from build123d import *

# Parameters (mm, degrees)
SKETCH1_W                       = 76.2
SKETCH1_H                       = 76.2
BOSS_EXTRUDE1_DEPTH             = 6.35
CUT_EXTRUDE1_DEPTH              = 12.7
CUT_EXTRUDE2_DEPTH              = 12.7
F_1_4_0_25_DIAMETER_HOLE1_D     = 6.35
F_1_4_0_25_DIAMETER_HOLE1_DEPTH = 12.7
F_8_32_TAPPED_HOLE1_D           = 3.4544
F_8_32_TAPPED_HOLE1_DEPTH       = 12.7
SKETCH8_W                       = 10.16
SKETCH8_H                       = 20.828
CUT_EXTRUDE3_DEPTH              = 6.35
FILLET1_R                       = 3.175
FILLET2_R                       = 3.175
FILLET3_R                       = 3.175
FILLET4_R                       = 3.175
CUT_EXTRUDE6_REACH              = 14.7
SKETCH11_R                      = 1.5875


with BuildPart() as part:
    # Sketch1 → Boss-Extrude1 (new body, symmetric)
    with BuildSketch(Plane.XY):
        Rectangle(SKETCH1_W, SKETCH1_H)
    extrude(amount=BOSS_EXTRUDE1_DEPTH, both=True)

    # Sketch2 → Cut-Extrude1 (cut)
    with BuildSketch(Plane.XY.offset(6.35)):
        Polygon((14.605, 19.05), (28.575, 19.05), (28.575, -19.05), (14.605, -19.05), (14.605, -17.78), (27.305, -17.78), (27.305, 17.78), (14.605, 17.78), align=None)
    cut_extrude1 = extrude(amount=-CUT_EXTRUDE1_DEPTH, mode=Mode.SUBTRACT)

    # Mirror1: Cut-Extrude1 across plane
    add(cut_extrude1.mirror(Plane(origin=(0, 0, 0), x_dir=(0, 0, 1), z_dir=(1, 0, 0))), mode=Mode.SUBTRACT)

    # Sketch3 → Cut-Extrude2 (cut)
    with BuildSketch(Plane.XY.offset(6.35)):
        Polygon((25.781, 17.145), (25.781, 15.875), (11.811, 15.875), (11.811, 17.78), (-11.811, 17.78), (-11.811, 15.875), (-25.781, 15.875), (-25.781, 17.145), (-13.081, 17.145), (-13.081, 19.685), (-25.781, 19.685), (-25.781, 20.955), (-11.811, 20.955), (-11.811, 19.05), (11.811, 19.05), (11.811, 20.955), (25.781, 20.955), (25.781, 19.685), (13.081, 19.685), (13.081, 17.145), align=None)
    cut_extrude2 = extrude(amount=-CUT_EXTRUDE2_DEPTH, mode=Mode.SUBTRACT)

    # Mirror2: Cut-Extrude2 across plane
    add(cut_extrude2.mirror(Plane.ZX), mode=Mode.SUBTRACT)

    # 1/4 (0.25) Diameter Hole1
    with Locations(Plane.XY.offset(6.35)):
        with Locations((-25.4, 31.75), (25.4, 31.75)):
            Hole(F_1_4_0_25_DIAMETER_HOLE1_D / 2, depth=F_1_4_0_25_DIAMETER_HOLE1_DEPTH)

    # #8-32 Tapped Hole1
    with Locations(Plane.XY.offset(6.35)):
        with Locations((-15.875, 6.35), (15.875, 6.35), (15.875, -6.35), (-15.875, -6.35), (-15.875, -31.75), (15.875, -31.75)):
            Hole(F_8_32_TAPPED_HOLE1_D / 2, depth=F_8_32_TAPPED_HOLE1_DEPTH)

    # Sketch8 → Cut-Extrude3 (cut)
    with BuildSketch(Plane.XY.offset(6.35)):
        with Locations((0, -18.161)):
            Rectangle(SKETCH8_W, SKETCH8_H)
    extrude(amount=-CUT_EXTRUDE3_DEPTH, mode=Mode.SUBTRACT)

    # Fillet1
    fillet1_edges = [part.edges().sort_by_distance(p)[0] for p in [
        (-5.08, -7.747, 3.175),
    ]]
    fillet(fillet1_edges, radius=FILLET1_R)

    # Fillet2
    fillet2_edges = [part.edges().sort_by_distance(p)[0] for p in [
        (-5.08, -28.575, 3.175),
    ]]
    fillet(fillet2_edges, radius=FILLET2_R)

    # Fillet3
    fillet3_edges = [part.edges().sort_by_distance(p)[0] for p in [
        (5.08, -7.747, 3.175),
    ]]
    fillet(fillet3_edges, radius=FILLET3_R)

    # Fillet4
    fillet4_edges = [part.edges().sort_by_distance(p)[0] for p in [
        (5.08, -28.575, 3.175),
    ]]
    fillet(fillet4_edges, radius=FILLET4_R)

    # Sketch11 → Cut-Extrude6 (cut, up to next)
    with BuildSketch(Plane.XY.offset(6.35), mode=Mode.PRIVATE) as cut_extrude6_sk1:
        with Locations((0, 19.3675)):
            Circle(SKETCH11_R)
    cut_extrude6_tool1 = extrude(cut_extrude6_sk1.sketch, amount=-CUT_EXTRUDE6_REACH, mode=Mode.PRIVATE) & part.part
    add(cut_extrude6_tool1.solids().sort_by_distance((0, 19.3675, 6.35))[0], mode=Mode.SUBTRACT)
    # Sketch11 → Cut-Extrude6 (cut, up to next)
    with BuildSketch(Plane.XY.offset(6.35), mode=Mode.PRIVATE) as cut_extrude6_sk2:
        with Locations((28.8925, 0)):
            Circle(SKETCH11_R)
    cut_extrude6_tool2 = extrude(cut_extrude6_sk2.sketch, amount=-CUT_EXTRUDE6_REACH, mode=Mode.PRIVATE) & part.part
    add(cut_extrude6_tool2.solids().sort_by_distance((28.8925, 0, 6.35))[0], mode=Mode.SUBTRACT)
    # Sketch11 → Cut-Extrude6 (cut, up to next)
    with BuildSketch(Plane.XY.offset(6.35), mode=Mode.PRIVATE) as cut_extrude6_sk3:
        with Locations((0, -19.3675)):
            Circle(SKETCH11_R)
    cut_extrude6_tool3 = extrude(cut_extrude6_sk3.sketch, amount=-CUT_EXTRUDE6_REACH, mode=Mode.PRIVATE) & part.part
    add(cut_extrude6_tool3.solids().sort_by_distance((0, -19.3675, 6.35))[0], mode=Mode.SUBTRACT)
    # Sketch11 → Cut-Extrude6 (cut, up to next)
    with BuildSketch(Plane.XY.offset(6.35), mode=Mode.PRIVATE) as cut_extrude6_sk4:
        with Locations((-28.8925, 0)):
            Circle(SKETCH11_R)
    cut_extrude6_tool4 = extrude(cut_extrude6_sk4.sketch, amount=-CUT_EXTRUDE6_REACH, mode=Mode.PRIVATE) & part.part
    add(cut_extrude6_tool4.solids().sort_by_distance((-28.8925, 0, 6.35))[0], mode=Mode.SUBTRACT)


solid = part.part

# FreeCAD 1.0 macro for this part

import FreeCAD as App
import Part
import Sketcher
Q = App.Units.Quantity


def edges_at(feature, points):
    """Names of the edges that pass closest to the given points."""
    edges = feature.Shape.Edges
    near = lambda p: min(range(len(edges)), key=lambda i: edges[i].distToShape(Part.Vertex(*p))[0])
    return sorted({f"Edge{near(p) + 1}" for p in points})

doc = App.newDocument("Part")
params = doc.addObject("Spreadsheet::Sheet", "Params")
for row, (alias, value) in enumerate([
    ("sketch1_width", "3 in"),
    ("pad1_length", "0.5 in"),
    ("sketch2_width", "0.5 in"),
    ("sketch2_height", "1.4 in"),
    ("sketch2_height2", "1.5 in"),
    ("sketch2_width2", "0.55 in"),
    ("pocket1_length", "0.5 in"),
    ("sketch3_width", "0.5 in"),
    ("sketch3_height", "0.1 in"),
    ("sketch3_width2", "0.55 in"),
    ("sketch3_width3", "0.93 in"),
    ("sketch3_height2", "0.05 in"),
    ("pocket2_length", "0.5 in"),
    ("sketch4_diameter", "0.25 in"),
    ("hole_diameter", "0.25 in"),
    ("hole_depth", "0.5 in"),
    ("sketch5_diameter", "0.136 in"),
    ("hole2_diameter", "0.136 in"),
    ("hole2_depth", "0.5 in"),
    ("sketch6_width", "0.4 in"),
    ("sketch6_height", "0.82 in"),
    ("pocket3_length", "0.25 in"),
    ("fillet_radius", "0.125 in"),
    ("fillet2_radius", "0.125 in"),
    ("fillet3_radius", "0.125 in"),
    ("fillet4_radius", "0.125 in"),
    ("sketch7_diameter", "0.125 in"),
    ("sketch8_diameter", "0.125 in"),
    ("sketch9_diameter", "0.125 in"),
    ("pocket6_length", "0.5 in"),
    ("sketch10_diameter", "0.125 in"),
], start=1):
    params.set(f"A{row}", alias)
    params.set(f"B{row}", "=" + value)
    params.setAlias(f"B{row}", alias)

body = doc.addObject("PartDesign::Body", "Body")

sketch1 = body.newObject("Sketcher::SketchObject", "Sketch")
sketch1.AttachmentSupport = (doc.getObject("XY_Plane"), [""])
sketch1.MapMode = "FlatFace"
sketch1.addGeometry([
    Part.LineSegment(App.Vector(-38, 38, 0), App.Vector(-38, -38, 0)),
    Part.LineSegment(App.Vector(-38, -38, 0), App.Vector(38, -38, 0)),
    Part.LineSegment(App.Vector(38, -38, 0), App.Vector(38, 38, 0)),
    Part.LineSegment(App.Vector(38, 38, 0), App.Vector(-38, 38, 0)),
], False)
sketch1.addConstraint([
    Sketcher.Constraint("Coincident", 0, 2, 1, 1),
    Sketcher.Constraint("Coincident", 1, 2, 2, 1),
    Sketcher.Constraint("Coincident", 2, 2, 3, 1),
    Sketcher.Constraint("Coincident", 3, 2, 0, 1),
    Sketcher.Constraint("Vertical", 0),
    Sketcher.Constraint("Horizontal", 1),
    Sketcher.Constraint("Vertical", 2),
    Sketcher.Constraint("Horizontal", 3),
    Sketcher.Constraint("Symmetric", 0, 2, 2, 2, -1, 1),
    Sketcher.Constraint("Equal", 3, 0),
    Sketcher.Constraint("DistanceX", 1, 1, 1, 2, Q("3 in")),
])
sketch1.setExpression("Constraints[10]", "Params.sketch1_width")
pad1 = body.newObject("PartDesign::Pad", "Pad")
pad1.Profile = sketch1
pad1.setExpression("Length", "Params.pad1_length")
pad1.Midplane = True

sketch2 = body.newObject("Sketcher::SketchObject", "Sketch001")
sketch2.AttachmentSupport = (doc.getObject("XY_Plane"), [""])
sketch2.MapMode = "FlatFace"
sketch2.AttachmentOffset = App.Placement(App.Vector(0, 0, 0.25 * 25.4), App.Rotation())
sketch2.addGeometry([
    Part.LineSegment(App.Vector(28.6, 19.1, 0), App.Vector(14.6, 19.1, 0)),
    Part.LineSegment(App.Vector(14.6, 19.1, 0), App.Vector(14.6, 17.8, 0)),
    Part.LineSegment(App.Vector(14.6, 17.8, 0), App.Vector(27.3, 17.8, 0)),
    Part.LineSegment(App.Vector(27.3, 17.8, 0), App.Vector(27.3, -17.8, 0)),
    Part.LineSegment(App.Vector(27.3, -17.8, 0), App.Vector(14.6, -17.8, 0)),
    Part.LineSegment(App.Vector(14.6, -17.8, 0), App.Vector(14.6, -19.1, 0)),
    Part.LineSegment(App.Vector(14.6, -19.1, 0), App.Vector(28.6, -19.1, 0)),
    Part.LineSegment(App.Vector(28.6, -19.1, 0), App.Vector(28.6, 19.1, 0)),
], False)
sketch2.addConstraint([
    Sketcher.Constraint("Coincident", 0, 2, 1, 1),
    Sketcher.Constraint("Coincident", 1, 2, 2, 1),
    Sketcher.Constraint("Coincident", 2, 2, 3, 1),
    Sketcher.Constraint("Coincident", 3, 2, 4, 1),
    Sketcher.Constraint("Coincident", 4, 2, 5, 1),
    Sketcher.Constraint("Coincident", 5, 2, 6, 1),
    Sketcher.Constraint("Coincident", 6, 2, 7, 1),
    Sketcher.Constraint("Coincident", 7, 2, 0, 1),
    Sketcher.Constraint("Horizontal", 0),
    Sketcher.Constraint("Vertical", 1),
    Sketcher.Constraint("Horizontal", 2),
    Sketcher.Constraint("Vertical", 3),
    Sketcher.Constraint("Horizontal", 4),
    Sketcher.Constraint("Vertical", 5),
    Sketcher.Constraint("Horizontal", 6),
    Sketcher.Constraint("Vertical", 7),
    Sketcher.Constraint("Symmetric", 1, 2, 4, 2, -1),
    Sketcher.Constraint("Equal", 1, 5),
    Sketcher.Constraint("DistanceX", 2, 1, 2, 2, Q("0.5 in")),
    Sketcher.Constraint("DistanceY", 3, 2, 3, 1, Q("1.4 in")),
    Sketcher.Constraint("DistanceY", 7, 1, 7, 2, Q("1.5 in")),
    Sketcher.Constraint("DistanceX", 0, 2, 0, 1, Q("0.55 in")),
    Sketcher.Constraint("DistanceX", -1, 1, 0, 2, Q("0.575 in")),
])
sketch2.setExpression("Constraints[18]", "Params.sketch2_width")
sketch2.setExpression("Constraints[19]", "Params.sketch2_height")
sketch2.setExpression("Constraints[20]", "Params.sketch2_height2")
sketch2.setExpression("Constraints[21]", "Params.sketch2_width2")
pocket1 = body.newObject("PartDesign::Pocket", "Pocket")
pocket1.Profile = sketch2
pocket1.setExpression("Length", "Params.pocket1_length")
doc.recompute()

mirrored = body.newObject("PartDesign::Mirrored", "Mirrored")
mirrored.Originals = [pocket1]
mirrored.MirrorPlane = (doc.getObject("YZ_Plane"), [""])
body.Tip = mirrored

sketch3 = body.newObject("Sketcher::SketchObject", "Sketch002")
sketch3.AttachmentSupport = (doc.getObject("XY_Plane"), [""])
sketch3.MapMode = "FlatFace"
sketch3.AttachmentOffset = App.Placement(App.Vector(0, 0, 0.25 * 25.4), App.Rotation())
sketch3.addGeometry([
    Part.LineSegment(App.Vector(25.8, 15.9, 0), App.Vector(25.8, 17.1, 0)),
    Part.LineSegment(App.Vector(25.8, 17.1, 0), App.Vector(13.1, 17.1, 0)),
    Part.LineSegment(App.Vector(13.1, 17.1, 0), App.Vector(13.1, 19.7, 0)),
    Part.LineSegment(App.Vector(13.1, 19.7, 0), App.Vector(25.8, 19.7, 0)),
    Part.LineSegment(App.Vector(25.8, 19.7, 0), App.Vector(25.8, 21, 0)),
    Part.LineSegment(App.Vector(25.8, 21, 0), App.Vector(11.8, 21, 0)),
    Part.LineSegment(App.Vector(11.8, 21, 0), App.Vector(11.8, 19.1, 0)),
    Part.LineSegment(App.Vector(11.8, 19.1, 0), App.Vector(-11.8, 19.1, 0)),
    Part.LineSegment(App.Vector(-11.8, 19.1, 0), App.Vector(-11.8, 21, 0)),
    Part.LineSegment(App.Vector(-11.8, 21, 0), App.Vector(-25.8, 21, 0)),
    Part.LineSegment(App.Vector(-25.8, 21, 0), App.Vector(-25.8, 19.7, 0)),
    Part.LineSegment(App.Vector(-25.8, 19.7, 0), App.Vector(-13.1, 19.7, 0)),
    Part.LineSegment(App.Vector(-13.1, 19.7, 0), App.Vector(-13.1, 17.1, 0)),
    Part.LineSegment(App.Vector(-13.1, 17.1, 0), App.Vector(-25.8, 17.1, 0)),
    Part.LineSegment(App.Vector(-25.8, 17.1, 0), App.Vector(-25.8, 15.9, 0)),
    Part.LineSegment(App.Vector(-25.8, 15.9, 0), App.Vector(-11.8, 15.9, 0)),
    Part.LineSegment(App.Vector(-11.8, 15.9, 0), App.Vector(-11.8, 17.8, 0)),
    Part.LineSegment(App.Vector(-11.8, 17.8, 0), App.Vector(11.8, 17.8, 0)),
    Part.LineSegment(App.Vector(11.8, 17.8, 0), App.Vector(11.8, 15.9, 0)),
    Part.LineSegment(App.Vector(11.8, 15.9, 0), App.Vector(25.8, 15.9, 0)),
], False)
sketch3.addConstraint([
    Sketcher.Constraint("Coincident", 0, 2, 1, 1),
    Sketcher.Constraint("Coincident", 1, 2, 2, 1),
    Sketcher.Constraint("Coincident", 2, 2, 3, 1),
    Sketcher.Constraint("Coincident", 3, 2, 4, 1),
    Sketcher.Constraint("Coincident", 4, 2, 5, 1),
    Sketcher.Constraint("Coincident", 5, 2, 6, 1),
    Sketcher.Constraint("Coincident", 6, 2, 7, 1),
    Sketcher.Constraint("Coincident", 7, 2, 8, 1),
    Sketcher.Constraint("Coincident", 8, 2, 9, 1),
    Sketcher.Constraint("Coincident", 9, 2, 10, 1),
    Sketcher.Constraint("Coincident", 10, 2, 11, 1),
    Sketcher.Constraint("Coincident", 11, 2, 12, 1),
    Sketcher.Constraint("Coincident", 12, 2, 13, 1),
    Sketcher.Constraint("Coincident", 13, 2, 14, 1),
    Sketcher.Constraint("Coincident", 14, 2, 15, 1),
    Sketcher.Constraint("Coincident", 15, 2, 16, 1),
    Sketcher.Constraint("Coincident", 16, 2, 17, 1),
    Sketcher.Constraint("Coincident", 17, 2, 18, 1),
    Sketcher.Constraint("Coincident", 18, 2, 19, 1),
    Sketcher.Constraint("Coincident", 19, 2, 0, 1),
    Sketcher.Constraint("Vertical", 0),
    Sketcher.Constraint("Horizontal", 1),
    Sketcher.Constraint("Vertical", 2),
    Sketcher.Constraint("Horizontal", 3),
    Sketcher.Constraint("Vertical", 4),
    Sketcher.Constraint("Horizontal", 5),
    Sketcher.Constraint("Vertical", 6),
    Sketcher.Constraint("Horizontal", 7),
    Sketcher.Constraint("Vertical", 8),
    Sketcher.Constraint("Horizontal", 9),
    Sketcher.Constraint("Vertical", 10),
    Sketcher.Constraint("Horizontal", 11),
    Sketcher.Constraint("Vertical", 12),
    Sketcher.Constraint("Horizontal", 13),
    Sketcher.Constraint("Vertical", 14),
    Sketcher.Constraint("Horizontal", 15),
    Sketcher.Constraint("Vertical", 16),
    Sketcher.Constraint("Horizontal", 17),
    Sketcher.Constraint("Vertical", 18),
    Sketcher.Constraint("Horizontal", 19),
    Sketcher.Constraint("Symmetric", 5, 2, 8, 2, -2),
    Sketcher.Constraint("Symmetric", 3, 2, 10, 2, -2),
    Sketcher.Constraint("Symmetric", 1, 2, 12, 2, -2),
    Sketcher.Constraint("Symmetric", 15, 2, 18, 2, -2),
    Sketcher.Constraint("Vertical", 0, 2, 3, 2),
    Sketcher.Constraint("Vertical", 10, 2, 13, 2),
    Sketcher.Constraint("Vertical", 8, 2, 15, 2),
    Sketcher.Constraint("Equal", 0, 4),
    Sketcher.Constraint("Equal", 8, 16),
    Sketcher.Constraint("DistanceX", 1, 2, 1, 1, Q("0.5 in")),
    Sketcher.Constraint("DistanceY", 2, 1, 2, 2, Q("0.1 in")),
    Sketcher.Constraint("DistanceX", 5, 2, 5, 1, Q("0.55 in")),
    Sketcher.Constraint("DistanceX", 7, 2, 7, 1, Q("0.93 in")),
    Sketcher.Constraint("DistanceY", 0, 1, 0, 2, Q("0.05 in")),
    Sketcher.Constraint("DistanceY", -1, 1, 16, 2, Q("0.7 in")),
    Sketcher.Constraint("DistanceY", 6, 2, 6, 1, Q("0.075 in")),
])
sketch3.setExpression("Constraints[49]", "Params.sketch3_width")
sketch3.setExpression("Constraints[50]", "Params.sketch3_height")
sketch3.setExpression("Constraints[51]", "Params.sketch3_width2")
sketch3.setExpression("Constraints[52]", "Params.sketch3_width3")
sketch3.setExpression("Constraints[53]", "Params.sketch3_height2")
pocket2 = body.newObject("PartDesign::Pocket", "Pocket001")
pocket2.Profile = sketch3
pocket2.setExpression("Length", "Params.pocket2_length")
doc.recompute()

mirrored2 = body.newObject("PartDesign::Mirrored", "Mirrored001")
mirrored2.Originals = [pocket2]
mirrored2.MirrorPlane = (doc.getObject("XZ_Plane"), [""])
body.Tip = mirrored2

sketch4 = body.newObject("Sketcher::SketchObject", "Sketch003")
sketch4.AttachmentSupport = (doc.getObject("XY_Plane"), [""])
sketch4.MapMode = "FlatFace"
sketch4.AttachmentOffset = App.Placement(App.Vector(0, 0, 0.25 * 25.4), App.Rotation())
sketch4.addGeometry([
    Part.Circle(App.Vector(-25.4, 31.8, 0), App.Vector(0, 0, 1), 3.2),
    Part.Circle(App.Vector(25.4, 31.8, 0), App.Vector(0, 0, 1), 3.2),
], False)
sketch4.addConstraint([
    Sketcher.Constraint("Equal", 0, 1),
    Sketcher.Constraint("Symmetric", 0, 3, 1, 3, -2),
    Sketcher.Constraint("Diameter", 0, Q("0.25 in")),
    Sketcher.Constraint("DistanceX", 0, 3, -1, 1, Q("1 in")),
    Sketcher.Constraint("DistanceY", -1, 1, 0, 3, Q("1.25 in")),
])
sketch4.setExpression("Constraints[2]", "Params.sketch4_diameter")
doc.recompute()
hole = body.newObject("PartDesign::Hole", "Hole")
hole.Profile = sketch4
hole.ThreadType = "None"
hole.setExpression("Diameter", "Params.hole_diameter")
hole.DepthType = "Dimension"
hole.setExpression("Depth", "Params.hole_depth")
hole.DrillPoint = "Flat"

sketch5 = body.newObject("Sketcher::SketchObject", "Sketch004")
sketch5.AttachmentSupport = (doc.getObject("XY_Plane"), [""])
sketch5.MapMode = "FlatFace"
sketch5.AttachmentOffset = App.Placement(App.Vector(0, 0, 0.25 * 25.4), App.Rotation())
sketch5.addGeometry([
    Part.Circle(App.Vector(-15.9, 6.3, 0), App.Vector(0, 0, 1), 1.7),
    Part.Circle(App.Vector(15.9, 6.3, 0), App.Vector(0, 0, 1), 1.7),
    Part.Circle(App.Vector(15.9, -6.3, 0), App.Vector(0, 0, 1), 1.7),
    Part.Circle(App.Vector(-15.9, -6.3, 0), App.Vector(0, 0, 1), 1.7),
    Part.Circle(App.Vector(-15.9, -31.8, 0), App.Vector(0, 0, 1), 1.7),
    Part.Circle(App.Vector(15.9, -31.8, 0), App.Vector(0, 0, 1), 1.7),
], False)
sketch5.addConstraint([
    Sketcher.Constraint("Equal", 0, 1),
    Sketcher.Constraint("Equal", 1, 2),
    Sketcher.Constraint("Equal", 2, 3),
    Sketcher.Constraint("Equal", 3, 4),
    Sketcher.Constraint("Equal", 4, 5),
    Sketcher.Constraint("Symmetric", 0, 3, 2, 3, -1, 1),
    Sketcher.Constraint("Symmetric", 1, 3, 3, 3, -1, 1),
    Sketcher.Constraint("Symmetric", 0, 3, 1, 3, -2),
    Sketcher.Constraint("Symmetric", 4, 3, 5, 3, -2),
    Sketcher.Constraint("Vertical", 3, 3, 4, 3),
    Sketcher.Constraint("Diameter", 0, Q("0.136 in")),
    Sketcher.Constraint("DistanceY", 4, 3, 3, 3, Q("1 in")),
    Sketcher.Constraint("DistanceY", 2, 3, 1, 3, Q("0.5 in")),
    Sketcher.Constraint("DistanceX", 0, 3, 1, 3, Q("1.25 in")),
])
sketch5.setExpression("Constraints[10]", "Params.sketch5_diameter")
doc.recompute()
hole2 = body.newObject("PartDesign::Hole", "Hole001")
hole2.Profile = sketch5
hole2.ThreadType = "None"
hole2.setExpression("Diameter", "Params.hole2_diameter")
hole2.DepthType = "Dimension"
hole2.setExpression("Depth", "Params.hole2_depth")
hole2.DrillPoint = "Flat"

sketch6 = body.newObject("Sketcher::SketchObject", "Sketch005")
sketch6.AttachmentSupport = (doc.getObject("XY_Plane"), [""])
sketch6.MapMode = "FlatFace"
sketch6.AttachmentOffset = App.Placement(App.Vector(0, 0, 0.25 * 25.4), App.Rotation())
sketch6.addGeometry([
    Part.LineSegment(App.Vector(-5, -8, 0), App.Vector(-5, -29, 0)),
    Part.LineSegment(App.Vector(-5, -29, 0), App.Vector(5, -29, 0)),
    Part.LineSegment(App.Vector(5, -29, 0), App.Vector(5, -8, 0)),
    Part.LineSegment(App.Vector(5, -8, 0), App.Vector(-5, -8, 0)),
], False)
sketch6.addConstraint([
    Sketcher.Constraint("Coincident", 0, 2, 1, 1),
    Sketcher.Constraint("Coincident", 1, 2, 2, 1),
    Sketcher.Constraint("Coincident", 2, 2, 3, 1),
    Sketcher.Constraint("Coincident", 3, 2, 0, 1),
    Sketcher.Constraint("Vertical", 0),
    Sketcher.Constraint("Horizontal", 1),
    Sketcher.Constraint("Vertical", 2),
    Sketcher.Constraint("Horizontal", 3),
    Sketcher.Constraint("DistanceX", 1, 1, 1, 2, Q("0.4 in")),
    Sketcher.Constraint("DistanceY", 0, 2, 0, 1, Q("0.82 in")),
    Sketcher.Constraint("DistanceX", 0, 2, -1, 1, Q("0.2 in")),
    Sketcher.Constraint("DistanceY", 0, 2, -1, 1, Q("1.125 in")),
])
sketch6.setExpression("Constraints[8]", "Params.sketch6_width")
sketch6.setExpression("Constraints[9]", "Params.sketch6_height")
pocket3 = body.newObject("PartDesign::Pocket", "Pocket002")
pocket3.Profile = sketch6
pocket3.setExpression("Length", "Params.pocket3_length")
doc.recompute()

fillet = body.newObject("PartDesign::Fillet", "Fillet")
fillet.Base = (pocket3, edges_at(pocket3, [(-5.08, -7.747, 3.175)]))
fillet.setExpression("Radius", "Params.fillet_radius")
doc.recompute()

fillet2 = body.newObject("PartDesign::Fillet", "Fillet001")
fillet2.Base = (fillet, edges_at(fillet, [(-5.08, -28.575, 3.175)]))
fillet2.setExpression("Radius", "Params.fillet2_radius")
doc.recompute()

fillet3 = body.newObject("PartDesign::Fillet", "Fillet002")
fillet3.Base = (fillet2, edges_at(fillet2, [(5.08, -7.747, 3.175)]))
fillet3.setExpression("Radius", "Params.fillet3_radius")
doc.recompute()

fillet4 = body.newObject("PartDesign::Fillet", "Fillet003")
fillet4.Base = (fillet3, edges_at(fillet3, [(5.08, -28.575, 3.175)]))
fillet4.setExpression("Radius", "Params.fillet4_radius")

sketch7 = body.newObject("Sketcher::SketchObject", "Sketch006")
sketch7.AttachmentSupport = (doc.getObject("XY_Plane"), [""])
sketch7.MapMode = "FlatFace"
sketch7.AttachmentOffset = App.Placement(App.Vector(0, 0, 0.25 * 25.4), App.Rotation())
sketch7.addGeometry(Part.Circle(App.Vector(0, 19.4, 0), App.Vector(0, 0, 1), 1.6), False)
sketch7.addConstraint([
    Sketcher.Constraint("PointOnObject", 0, 3, -2),
    Sketcher.Constraint("Diameter", 0, Q("0.125 in")),
    Sketcher.Constraint("DistanceY", -1, 1, 0, 3, Q("0.7625 in")),
])
sketch7.setExpression("Constraints[1]", "Params.sketch7_diameter")
pocket4 = body.newObject("PartDesign::Pocket", "Pocket003")
pocket4.Profile = sketch7
pocket4.Type = "UpToFirst"

sketch8 = body.newObject("Sketcher::SketchObject", "Sketch007")
sketch8.AttachmentSupport = (doc.getObject("XY_Plane"), [""])
sketch8.MapMode = "FlatFace"
sketch8.AttachmentOffset = App.Placement(App.Vector(0, 0, 0.25 * 25.4), App.Rotation())
sketch8.addGeometry(Part.Circle(App.Vector(28.9, 0, 0), App.Vector(0, 0, 1), 1.6), False)
sketch8.addConstraint([
    Sketcher.Constraint("PointOnObject", 0, 3, -1),
    Sketcher.Constraint("Diameter", 0, Q("0.125 in")),
    Sketcher.Constraint("DistanceX", -1, 1, 0, 3, Q("1.1375 in")),
])
sketch8.setExpression("Constraints[1]", "Params.sketch8_diameter")
pocket5 = body.newObject("PartDesign::Pocket", "Pocket004")
pocket5.Profile = sketch8
pocket5.Type = "UpToFirst"

sketch9 = body.newObject("Sketcher::SketchObject", "Sketch008")
sketch9.AttachmentSupport = (doc.getObject("XY_Plane"), [""])
sketch9.MapMode = "FlatFace"
sketch9.AttachmentOffset = App.Placement(App.Vector(0, 0, 0.25 * 25.4), App.Rotation())
sketch9.addGeometry(Part.Circle(App.Vector(0, -19.4, 0), App.Vector(0, 0, 1), 1.6), False)
sketch9.addConstraint([
    Sketcher.Constraint("PointOnObject", 0, 3, -2),
    Sketcher.Constraint("Diameter", 0, Q("0.125 in")),
    Sketcher.Constraint("DistanceY", 0, 3, -1, 1, Q("0.7625 in")),
])
sketch9.setExpression("Constraints[1]", "Params.sketch9_diameter")
pocket6 = body.newObject("PartDesign::Pocket", "Pocket005")
pocket6.Profile = sketch9
pocket6.setExpression("Length", "Params.pocket6_length")

sketch10 = body.newObject("Sketcher::SketchObject", "Sketch009")
sketch10.AttachmentSupport = (doc.getObject("XY_Plane"), [""])
sketch10.MapMode = "FlatFace"
sketch10.AttachmentOffset = App.Placement(App.Vector(0, 0, 0.25 * 25.4), App.Rotation())
sketch10.addGeometry(Part.Circle(App.Vector(-28.9, 0, 0), App.Vector(0, 0, 1), 1.6), False)
sketch10.addConstraint([
    Sketcher.Constraint("PointOnObject", 0, 3, -1),
    Sketcher.Constraint("Diameter", 0, Q("0.125 in")),
    Sketcher.Constraint("DistanceX", 0, 3, -1, 1, Q("1.1375 in")),
])
sketch10.setExpression("Constraints[1]", "Params.sketch10_diameter")
pocket7 = body.newObject("PartDesign::Pocket", "Pocket006")
pocket7.Profile = sketch10
pocket7.Type = "UpToFirst"

doc.recompute()
